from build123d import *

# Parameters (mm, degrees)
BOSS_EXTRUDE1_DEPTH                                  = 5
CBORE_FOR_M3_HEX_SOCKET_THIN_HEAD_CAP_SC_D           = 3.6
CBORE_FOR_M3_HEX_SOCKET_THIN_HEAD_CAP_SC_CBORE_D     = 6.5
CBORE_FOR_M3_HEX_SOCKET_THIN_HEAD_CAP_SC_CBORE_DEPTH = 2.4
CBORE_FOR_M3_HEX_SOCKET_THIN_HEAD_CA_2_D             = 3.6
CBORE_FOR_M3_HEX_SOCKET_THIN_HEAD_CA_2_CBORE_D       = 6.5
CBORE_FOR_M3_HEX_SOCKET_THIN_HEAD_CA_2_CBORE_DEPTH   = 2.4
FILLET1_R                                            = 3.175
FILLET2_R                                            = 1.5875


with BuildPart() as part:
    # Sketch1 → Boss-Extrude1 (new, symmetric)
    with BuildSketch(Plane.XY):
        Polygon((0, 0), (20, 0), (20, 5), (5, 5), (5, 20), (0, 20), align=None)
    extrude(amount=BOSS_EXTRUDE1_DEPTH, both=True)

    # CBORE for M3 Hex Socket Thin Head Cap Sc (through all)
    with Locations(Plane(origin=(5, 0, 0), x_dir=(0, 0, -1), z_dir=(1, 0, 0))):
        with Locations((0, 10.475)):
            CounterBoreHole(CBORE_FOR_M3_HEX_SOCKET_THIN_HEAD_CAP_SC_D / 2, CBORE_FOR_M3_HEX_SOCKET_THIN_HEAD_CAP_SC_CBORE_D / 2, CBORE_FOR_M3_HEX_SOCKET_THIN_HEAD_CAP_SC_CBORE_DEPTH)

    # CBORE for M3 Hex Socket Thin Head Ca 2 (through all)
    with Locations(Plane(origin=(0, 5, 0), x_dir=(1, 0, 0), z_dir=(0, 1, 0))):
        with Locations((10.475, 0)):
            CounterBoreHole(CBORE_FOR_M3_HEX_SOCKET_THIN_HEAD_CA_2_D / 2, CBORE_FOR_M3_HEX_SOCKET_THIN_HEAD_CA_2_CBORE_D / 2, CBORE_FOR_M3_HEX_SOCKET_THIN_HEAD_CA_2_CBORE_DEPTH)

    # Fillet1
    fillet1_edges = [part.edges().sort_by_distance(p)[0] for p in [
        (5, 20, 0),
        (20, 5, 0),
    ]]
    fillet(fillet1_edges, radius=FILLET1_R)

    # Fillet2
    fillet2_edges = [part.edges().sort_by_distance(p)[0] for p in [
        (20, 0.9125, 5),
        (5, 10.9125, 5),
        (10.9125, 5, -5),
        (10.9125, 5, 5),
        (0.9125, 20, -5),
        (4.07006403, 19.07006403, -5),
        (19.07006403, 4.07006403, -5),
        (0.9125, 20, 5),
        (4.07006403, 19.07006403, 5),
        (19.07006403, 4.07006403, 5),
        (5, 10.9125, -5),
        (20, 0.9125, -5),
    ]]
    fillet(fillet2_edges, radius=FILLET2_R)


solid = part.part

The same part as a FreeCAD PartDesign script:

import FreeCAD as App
import Part
import Sketcher
from FreeCAD import Vector
Q = App.Units.Quantity


def edges_at(feature, points):
    """Names of the edges that pass closest to the given points."""
    edges = feature.Shape.Edges
    near = lambda p: min(range(len(edges)), key=lambda i: edges[i].distToShape(Part.Vertex(*p))[0])
    return sorted({f"Edge{near(p) + 1}" for p in points})

doc = App.newDocument("Part")
body = doc.addObject("PartDesign::Body", "Body")

# Sketch on XY plane
sketch1 = body.newObject("Sketcher::SketchObject", "Sketch")
sketch1.AttachmentSupport = (doc.getObject("XY_Plane"), [""])
sketch1.MapMode = "FlatFace"
sketch1.addGeometry([
    Part.LineSegment(Vector(0, 0, 0), Vector(20, 0, 0)),  # 0
    Part.LineSegment(Vector(20, 0, 0), Vector(20, 5, 0)),  # 1
    Part.LineSegment(Vector(20, 5, 0), Vector(5, 5, 0)),  # 2
    Part.LineSegment(Vector(5, 5, 0), Vector(5, 20, 0)),  # 3
    Part.LineSegment(Vector(5, 20, 0), Vector(0, 20, 0)),  # 4
    Part.LineSegment(Vector(0, 20, 0), Vector(0, 0, 0)),  # 5
], False)
sketch1.addConstraint([
    Sketcher.Constraint("Coincident", 0, 2, 1, 1),
    Sketcher.Constraint("Coincident", 1, 2, 2, 1),
    Sketcher.Constraint("Coincident", 2, 2, 3, 1),
    Sketcher.Constraint("Coincident", 3, 2, 4, 1),
    Sketcher.Constraint("Coincident", 4, 2, 5, 1),
    Sketcher.Constraint("Coincident", 5, 2, 0, 1),
    Sketcher.Constraint("Horizontal", 0),
    Sketcher.Constraint("Vertical", 1),
    Sketcher.Constraint("Horizontal", 2),
    Sketcher.Constraint("Vertical", 3),
    Sketcher.Constraint("Horizontal", 4),
    Sketcher.Constraint("Vertical", 5),
    Sketcher.Constraint("Coincident", 5, 2, -1, 1),
    Sketcher.Constraint("Equal", 4, 1),
    Sketcher.Constraint("Equal", 2, 3),
    Sketcher.Constraint("DistanceX", 0, 1, 0, 2, Q("20 mm")),
    Sketcher.Constraint("DistanceX", 2, 2, 2, 1, Q("15 mm")),
])
pad1 = body.newObject("PartDesign::Pad", "Pad")
pad1.Profile = sketch1
pad1.Length = 10
pad1.Midplane = True

# Sketch on YZ plane
sketch2 = body.newObject("Sketcher::SketchObject", "Sketch001")
sketch2.AttachmentSupport = (doc.getObject("YZ_Plane"), [""])
sketch2.MapMode = "FlatFace"
sketch2.AttachmentOffset = App.Placement(Vector(0, 0, 5), App.Rotation())
sketch2.addGeometry(Part.Circle(Vector(10.5, 0, 0), Vector(0, 0, 1), 1.8), False)
sketch2.addConstraint([
    Sketcher.Constraint("PointOnObject", 0, 3, -1),
    Sketcher.Constraint("Diameter", 0, Q("3.6 mm")),
    Sketcher.Constraint("DistanceX", -1, 1, 0, 3, Q("10.475 mm")),
])
doc.recompute()
hole = body.newObject("PartDesign::Hole", "Hole")
hole.Profile = sketch2
hole.ThreadType = "None"
hole.Diameter = 3.6
hole.DepthType = "ThroughAll"
hole.HoleCutType = "Counterbore"
hole.HoleCutDiameter = 6.5
hole.HoleCutDepth = 2.4

# Sketch on XZ plane
sketch3 = body.newObject("Sketcher::SketchObject", "Sketch002")
sketch3.AttachmentSupport = (doc.getObject("XZ_Plane"), [""])
sketch3.MapMode = "FlatFace"
sketch3.AttachmentOffset = App.Placement(Vector(0, 0, -5), App.Rotation())
sketch3.addGeometry(Part.Circle(Vector(10.5, 0, 0), Vector(0, 0, 1), 1.8), False)
sketch3.addConstraint([
    Sketcher.Constraint("PointOnObject", 0, 3, -1),
    Sketcher.Constraint("Diameter", 0, Q("3.6 mm")),
    Sketcher.Constraint("DistanceX", -1, 1, 0, 3, Q("10.475 mm")),
])
doc.recompute()
hole2 = body.newObject("PartDesign::Hole", "Hole001")
hole2.Profile = sketch3
hole2.ThreadType = "None"
hole2.Diameter = 3.6
hole2.DepthType = "ThroughAll"
hole2.HoleCutType = "Counterbore"
hole2.HoleCutDiameter = 6.5
hole2.HoleCutDepth = 2.4
hole2.Reversed = True
doc.recompute()

fillet = body.newObject("PartDesign::Fillet", "Fillet")
fillet.Base = (hole2, edges_at(hole2, [(5, 20, 0), (20, 5, 0)]))
fillet.Radius = 3.175
doc.recompute()

fillet2 = body.newObject("PartDesign::Fillet", "Fillet001")
fillet2.Base = (fillet, edges_at(fillet, [
    (20, 0.912, 5),
    (5, 10.912, 5),
    (10.912, 5, -5),
    (10.912, 5, 5),
    (0.912, 20, -5),
    (4.07, 19.07, -5),
    (19.07, 4.07, -5),
    (0.912, 20, 5),
    (4.07, 19.07, 5),
    (19.07, 4.07, 5),
    (5, 10.912, -5),
    (20, 0.912, -5),
]))
fillet2.Radius = 1.5875

doc.recompute()
